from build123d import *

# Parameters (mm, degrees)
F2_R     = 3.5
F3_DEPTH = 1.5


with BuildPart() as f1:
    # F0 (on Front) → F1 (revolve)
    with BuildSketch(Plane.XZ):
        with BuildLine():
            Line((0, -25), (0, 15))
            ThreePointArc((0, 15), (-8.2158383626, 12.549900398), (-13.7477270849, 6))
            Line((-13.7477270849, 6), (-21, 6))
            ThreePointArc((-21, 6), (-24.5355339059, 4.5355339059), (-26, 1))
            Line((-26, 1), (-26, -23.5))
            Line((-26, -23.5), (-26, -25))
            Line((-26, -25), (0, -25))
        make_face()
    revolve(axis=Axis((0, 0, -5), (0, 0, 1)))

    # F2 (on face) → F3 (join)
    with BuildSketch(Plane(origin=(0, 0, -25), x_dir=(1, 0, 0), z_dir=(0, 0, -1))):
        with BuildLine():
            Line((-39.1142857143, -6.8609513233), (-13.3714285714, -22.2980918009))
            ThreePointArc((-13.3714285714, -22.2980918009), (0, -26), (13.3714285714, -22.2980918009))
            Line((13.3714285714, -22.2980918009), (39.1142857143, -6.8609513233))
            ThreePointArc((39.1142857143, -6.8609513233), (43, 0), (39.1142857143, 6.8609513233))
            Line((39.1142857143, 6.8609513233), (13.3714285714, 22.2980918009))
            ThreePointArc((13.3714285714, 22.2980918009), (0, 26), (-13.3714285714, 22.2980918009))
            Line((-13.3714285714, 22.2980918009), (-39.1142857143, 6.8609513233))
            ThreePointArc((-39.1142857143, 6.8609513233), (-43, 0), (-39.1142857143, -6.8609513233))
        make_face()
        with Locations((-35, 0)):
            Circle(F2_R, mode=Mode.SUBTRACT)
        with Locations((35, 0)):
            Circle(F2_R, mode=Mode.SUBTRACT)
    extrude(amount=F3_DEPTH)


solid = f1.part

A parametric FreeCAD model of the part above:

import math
import FreeCAD as App
import Part
import Sketcher

V = App.Vector
Q = App.Units.Quantity

doc = App.newDocument("Part")
body = doc.addObject("PartDesign::Body", "Body")

sketch1 = doc.addObject("Sketcher::SketchObject", "Sketch")
body.addObject(sketch1)
sketch1.AttachmentSupport = (doc.XZ_Plane, [""])
sketch1.MapMode = "FlatFace"
sketch1.addGeometry([
    Part.LineSegment(V(0, -25, 0), V(0, 15, 0)),
    Part.ArcOfCircle(Part.Circle(V(0, 0, 0), V(0, 0, 1), 15), math.radians(90), math.radians(156)),
    Part.LineSegment(V(-14, 6, 0), V(-21, 6, 0)),
    Part.ArcOfCircle(Part.Circle(V(-21, 1, 0), V(0, 0, 1), 5), math.radians(90), math.radians(180)),
    Part.LineSegment(V(-26, 1, 0), V(-26, -25, 0)),
    Part.LineSegment(V(-26, -25, 0), V(0, -25, 0)),
], False)
sketch1.addConstraint([
    Sketcher.Constraint("Coincident", 0, 2, 1, 1),
    Sketcher.Constraint("Coincident", 1, 2, 2, 1),
    Sketcher.Constraint("Tangent", 2, 2, 3, 1),
    Sketcher.Constraint("Tangent", 3, 2, 4, 1),
    Sketcher.Constraint("Coincident", 4, 2, 5, 1),
    Sketcher.Constraint("Coincident", 5, 2, 0, 1),
    Sketcher.Constraint("Vertical", 0),
    Sketcher.Constraint("Horizontal", 2),
    Sketcher.Constraint("Vertical", 4),
    Sketcher.Constraint("Horizontal", 5),
    Sketcher.Constraint("Coincident", 1, 3, -1, 1),
    Sketcher.Constraint("PointOnObject", 0, 2, -2),
    Sketcher.Constraint("Equal", 5, 4),
    Sketcher.Constraint("Radius", 1, Q("15 mm")),
    Sketcher.Constraint("Radius", 3, Q("5 mm")),
    Sketcher.Constraint("DistanceX", 5, 1, 5, 2, Q("26 mm")),
    Sketcher.Constraint("DistanceY", 0, 1, 0, 2, Q("40 mm")),
])
revolution = doc.addObject("PartDesign::Revolution", "Revolution")
body.addObject(revolution)
revolution.Profile = sketch1
revolution.ReferenceAxis = (sketch1, ["V_Axis"])
revolution.Angle = 360

sketch2 = doc.addObject("Sketcher::SketchObject", "Sketch001")
body.addObject(sketch2)
sketch2.AttachmentSupport = (doc.XY_Plane, [""])
sketch2.MapMode = "FlatFace"
sketch2.AttachmentOffset = App.Placement(V(0, 0, -25), App.Rotation())
sketch2.addGeometry([
    Part.LineSegment(V(-39.1, 6.9, 0), V(-13.4, 22.3, 0)),
    Part.ArcOfCircle(Part.Circle(V(0, 0, 0), V(0, 0, 1), 26), math.radians(59), math.radians(121)),
    Part.LineSegment(V(13.4, 22.3, 0), V(39.1, 6.9, 0)),
    Part.ArcOfCircle(Part.Circle(V(35, 0, 0), V(0, 0, 1), 8), math.radians(-59), math.radians(59)),
    Part.LineSegment(V(39.1, -6.9, 0), V(13.4, -22.3, 0)),
    Part.ArcOfCircle(Part.Circle(V(0, 0, 0), V(0, 0, 1), 26), math.radians(-121), math.radians(-59)),
    Part.LineSegment(V(-13.4, -22.3, 0), V(-39.1, -6.9, 0)),
    Part.ArcOfCircle(Part.Circle(V(-35, 0, 0), V(0, 0, 1), 8), math.radians(121), math.radians(239)),
    Part.Circle(V(-35, 0, 0), V(0, 0, 1), 3.5),
    Part.Circle(V(35, 0, 0), V(0, 0, 1), 3.5),
], False)
sketch2.addConstraint([
    Sketcher.Constraint("Tangent", 0, 2, 1, 2),
    Sketcher.Constraint("Tangent", 1, 1, 2, 1),
    Sketcher.Constraint("Tangent", 2, 2, 3, 2),
    Sketcher.Constraint("Tangent", 3, 1, 4, 1),
    Sketcher.Constraint("Tangent", 4, 2, 5, 2),
    Sketcher.Constraint("Tangent", 5, 1, 6, 1),
    Sketcher.Constraint("Tangent", 6, 2, 7, 2),
    Sketcher.Constraint("Tangent", 7, 1, 0, 1),
    Sketcher.Constraint("Coincident", 1, 3, -1, 1),
    Sketcher.Constraint("Coincident", 5, 3, -1, 1),
    Sketcher.Constraint("Coincident", 8, 3, 7, 3),
    Sketcher.Constraint("Coincident", 9, 3, 3, 3),
    Sketcher.Constraint("Equal", 1, 5),
    Sketcher.Constraint("Equal", 3, 7),
    Sketcher.Constraint("Equal", 8, 9),
    Sketcher.Constraint("Symmetric", 3, 3, 7, 3, -1, 1),
    Sketcher.Constraint("PointOnObject", 3, 3, -1),
    Sketcher.Constraint("Diameter", 8, Q("7 mm")),
    Sketcher.Constraint("Radius", 1, Q("26 mm")),
    Sketcher.Constraint("Radius", 3, Q("8 mm")),
    Sketcher.Constraint("DistanceX", -1, 1, 3, 3, Q("35 mm")),
])
pad1 = doc.addObject("PartDesign::Pad", "Pad")
body.addObject(pad1)
pad1.Profile = sketch2
pad1.Length = 1.5
pad1.Reversed = True

doc.recompute()
